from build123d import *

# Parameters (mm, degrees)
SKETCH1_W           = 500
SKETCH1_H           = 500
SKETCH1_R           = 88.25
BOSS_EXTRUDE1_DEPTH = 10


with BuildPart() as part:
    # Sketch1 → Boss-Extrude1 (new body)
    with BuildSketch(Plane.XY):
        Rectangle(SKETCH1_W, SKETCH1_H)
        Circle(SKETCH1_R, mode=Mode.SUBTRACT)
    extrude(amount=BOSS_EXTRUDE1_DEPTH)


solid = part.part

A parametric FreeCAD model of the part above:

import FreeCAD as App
import Part
import Sketcher

V = App.Vector

doc = App.newDocument("Part")
body = doc.addObject("PartDesign::Body", "Body")

# Sketch on XY plane
sketch1 = doc.addObject("Sketcher::SketchObject", "Sketch")
body.addObject(sketch1)
sketch1.AttachmentSupport = (doc.XY_Plane, [""])
sketch1.MapMode = "FlatFace"
sketch1.addGeometry([
    Part.LineSegment(V(-250, 250, 0), V(-250, -250, 0)),  # 0
    Part.LineSegment(V(-250, -250, 0), V(250, -250, 0)),  # 1
    Part.LineSegment(V(250, -250, 0), V(250, 250, 0)),  # 2
    Part.LineSegment(V(250, 250, 0), V(-250, 250, 0)),  # 3
    Part.Circle(V(0, 0, 0), V(0, 0, 1), 88.25),  # 4
], False)
sketch1.addConstraint([
    Sketcher.Constraint("Coincident", 0, 2, 1, 1),
    Sketcher.Constraint("Coincident", 1, 2, 2, 1),
    Sketcher.Constraint("Coincident", 2, 2, 3, 1),
    Sketcher.Constraint("Coincident", 3, 2, 0, 1),
    Sketcher.Constraint("Vertical", 0),
    Sketcher.Constraint("Horizontal", 1),
    Sketcher.Constraint("Vertical", 2),
    Sketcher.Constraint("Horizontal", 3),
    Sketcher.Constraint("Coincident", 4, 3, -1, 1),
    Sketcher.Constraint("Symmetric", 0, 2, 2, 2, -1, 1),
    Sketcher.Constraint("Equal", 3, 0),
    Sketcher.Constraint("Diameter", 4, 176.5),
    Sketcher.Constraint("DistanceX", 1, 1, 1, 2, 500.0),
])
pad1 = doc.addObject("PartDesign::Pad", "Pad")
body.addObject(pad1)
pad1.Profile = sketch1
pad1.Length = 10

doc.recompute()
